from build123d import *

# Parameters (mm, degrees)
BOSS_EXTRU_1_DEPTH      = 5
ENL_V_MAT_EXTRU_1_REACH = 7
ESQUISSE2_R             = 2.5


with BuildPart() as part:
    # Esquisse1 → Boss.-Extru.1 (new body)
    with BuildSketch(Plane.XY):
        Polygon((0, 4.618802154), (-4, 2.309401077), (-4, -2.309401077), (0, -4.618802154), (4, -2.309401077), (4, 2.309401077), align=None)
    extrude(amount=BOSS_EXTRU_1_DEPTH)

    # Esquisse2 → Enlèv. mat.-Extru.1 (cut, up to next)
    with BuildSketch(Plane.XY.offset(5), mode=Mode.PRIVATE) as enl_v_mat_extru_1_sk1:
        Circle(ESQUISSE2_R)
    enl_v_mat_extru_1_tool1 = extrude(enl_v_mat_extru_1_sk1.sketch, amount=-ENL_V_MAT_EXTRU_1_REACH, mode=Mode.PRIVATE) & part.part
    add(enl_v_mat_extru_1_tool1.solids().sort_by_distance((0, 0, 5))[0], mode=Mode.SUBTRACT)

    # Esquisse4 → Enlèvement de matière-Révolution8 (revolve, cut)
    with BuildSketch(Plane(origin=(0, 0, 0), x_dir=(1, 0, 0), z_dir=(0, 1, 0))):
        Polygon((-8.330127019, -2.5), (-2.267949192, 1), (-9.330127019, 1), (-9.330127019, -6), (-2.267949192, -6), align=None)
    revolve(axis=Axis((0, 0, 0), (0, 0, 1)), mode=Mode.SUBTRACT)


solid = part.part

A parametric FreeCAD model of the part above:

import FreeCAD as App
import Part
import Sketcher
from FreeCAD import Vector
Q = App.Units.Quantity

doc = App.newDocument("Part")
body = doc.addObject("PartDesign::Body", "Body")

# Sketch on XY plane
sketch1 = body.newObject("Sketcher::SketchObject", "Sketch")
sketch1.AttachmentSupport = (doc.getObject("XY_Plane"), [""])
sketch1.MapMode = "FlatFace"
sketch1.addGeometry([
    Part.LineSegment(Vector(0, 4.618802, 0), Vector(-4, 2.309401, 0)),  # 0
    Part.LineSegment(Vector(-4, 2.309401, 0), Vector(-4, -2.309401, 0)),  # 1
    Part.LineSegment(Vector(-4, -2.309401, 0), Vector(0, -4.618802, 0)),  # 2
    Part.LineSegment(Vector(0, -4.618802, 0), Vector(4, -2.309401, 0)),  # 3
    Part.LineSegment(Vector(4, -2.309401, 0), Vector(4, 2.309401, 0)),  # 4
    Part.LineSegment(Vector(4, 2.309401, 0), Vector(0, 4.618802, 0)),  # 5
], False)
sketch1.addConstraint([
    Sketcher.Constraint("Coincident", 0, 2, 1, 1),
    Sketcher.Constraint("Coincident", 1, 2, 2, 1),
    Sketcher.Constraint("Coincident", 2, 2, 3, 1),
    Sketcher.Constraint("Coincident", 3, 2, 4, 1),
    Sketcher.Constraint("Coincident", 4, 2, 5, 1),
    Sketcher.Constraint("Coincident", 5, 2, 0, 1),
    Sketcher.Constraint("Vertical", 1),
    Sketcher.Constraint("Vertical", 4),
    Sketcher.Constraint("Symmetric", 0, 2, 3, 2, -1, 1),
    Sketcher.Constraint("Symmetric", 2, 2, 5, 2, -1, 1),
    Sketcher.Constraint("PointOnObject", 2, 2, -2),
    Sketcher.Constraint("Parallel", 2, 5),
    Sketcher.Constraint("Horizontal", 1, 2, 3, 2),
    Sketcher.Constraint("Angle", 0, Q("-150 deg")),
    Sketcher.Constraint("DistanceX", 0, 2, -1, 1, 4.0),
    Sketcher.Constraint("DistanceY", -1, 1, 0, 2, 2.309401),
])
pad1 = body.newObject("PartDesign::Pad", "Pad")
pad1.Profile = sketch1
pad1.Length = 5

# Sketch on XY plane
sketch2 = body.newObject("Sketcher::SketchObject", "Sketch001")
sketch2.AttachmentSupport = (doc.getObject("XY_Plane"), [""])
sketch2.MapMode = "FlatFace"
sketch2.AttachmentOffset = App.Placement(Vector(0, 0, 5), App.Rotation())
sketch2.addGeometry(Part.Circle(Vector(0, 0, 0), Vector(0, 0, 1), 2.5), False)
sketch2.addConstraint([
    Sketcher.Constraint("Coincident", 0, 3, -1, 1),
    Sketcher.Constraint("Diameter", 0, 5.0),
])
pocket1 = body.newObject("PartDesign::Pocket", "Pocket")
pocket1.Profile = sketch2
pocket1.Type = "UpToFirst"

# Sketch on XZ plane
sketch3 = body.newObject("Sketcher::SketchObject", "Sketch002")
sketch3.AttachmentSupport = (doc.getObject("XZ_Plane"), [""])
sketch3.MapMode = "FlatFace"
sketch3.addGeometry([
    Part.LineSegment(Vector(-8.330127, 2.5, 0), Vector(-2.267949, -1, 0)),  # 0
    Part.LineSegment(Vector(-2.267949, -1, 0), Vector(-9.330127, -1, 0)),  # 1
    Part.LineSegment(Vector(-9.330127, -1, 0), Vector(-9.330127, 6, 0)),  # 2
    Part.LineSegment(Vector(-9.330127, 6, 0), Vector(-2.267949, 6, 0)),  # 3
    Part.LineSegment(Vector(-2.267949, 6, 0), Vector(-8.330127, 2.5, 0)),  # 4
], False)
sketch3.addConstraint([
    Sketcher.Constraint("Coincident", 0, 2, 1, 1),
    Sketcher.Constraint("Coincident", 1, 2, 2, 1),
    Sketcher.Constraint("Coincident", 2, 2, 3, 1),
    Sketcher.Constraint("Coincident", 3, 2, 4, 1),
    Sketcher.Constraint("Coincident", 4, 2, 0, 1),
    Sketcher.Constraint("Horizontal", 1),
    Sketcher.Constraint("Vertical", 2),
    Sketcher.Constraint("Horizontal", 3),
    Sketcher.Constraint("Vertical", 0, 2, 3, 2),
    Sketcher.Constraint("Equal", 0, 4),
    Sketcher.Constraint("DistanceY", 2, 1, 2, 2, 7.0),
    Sketcher.Constraint("Angle", 0, Q("-30 deg")),
    Sketcher.Constraint("DistanceY", 0, 2, -1, 1, 1.0),
    Sketcher.Constraint("DistanceX", 1, 2, 4, 2, 1.0),
    Sketcher.Constraint("DistanceX", 0, 2, -1, 1, 2.267949),
])
groove = body.newObject("PartDesign::Groove", "Groove")
groove.Profile = sketch3
groove.ReferenceAxis = (sketch3, ["V_Axis"])
groove.Angle = 360

doc.recompute()
